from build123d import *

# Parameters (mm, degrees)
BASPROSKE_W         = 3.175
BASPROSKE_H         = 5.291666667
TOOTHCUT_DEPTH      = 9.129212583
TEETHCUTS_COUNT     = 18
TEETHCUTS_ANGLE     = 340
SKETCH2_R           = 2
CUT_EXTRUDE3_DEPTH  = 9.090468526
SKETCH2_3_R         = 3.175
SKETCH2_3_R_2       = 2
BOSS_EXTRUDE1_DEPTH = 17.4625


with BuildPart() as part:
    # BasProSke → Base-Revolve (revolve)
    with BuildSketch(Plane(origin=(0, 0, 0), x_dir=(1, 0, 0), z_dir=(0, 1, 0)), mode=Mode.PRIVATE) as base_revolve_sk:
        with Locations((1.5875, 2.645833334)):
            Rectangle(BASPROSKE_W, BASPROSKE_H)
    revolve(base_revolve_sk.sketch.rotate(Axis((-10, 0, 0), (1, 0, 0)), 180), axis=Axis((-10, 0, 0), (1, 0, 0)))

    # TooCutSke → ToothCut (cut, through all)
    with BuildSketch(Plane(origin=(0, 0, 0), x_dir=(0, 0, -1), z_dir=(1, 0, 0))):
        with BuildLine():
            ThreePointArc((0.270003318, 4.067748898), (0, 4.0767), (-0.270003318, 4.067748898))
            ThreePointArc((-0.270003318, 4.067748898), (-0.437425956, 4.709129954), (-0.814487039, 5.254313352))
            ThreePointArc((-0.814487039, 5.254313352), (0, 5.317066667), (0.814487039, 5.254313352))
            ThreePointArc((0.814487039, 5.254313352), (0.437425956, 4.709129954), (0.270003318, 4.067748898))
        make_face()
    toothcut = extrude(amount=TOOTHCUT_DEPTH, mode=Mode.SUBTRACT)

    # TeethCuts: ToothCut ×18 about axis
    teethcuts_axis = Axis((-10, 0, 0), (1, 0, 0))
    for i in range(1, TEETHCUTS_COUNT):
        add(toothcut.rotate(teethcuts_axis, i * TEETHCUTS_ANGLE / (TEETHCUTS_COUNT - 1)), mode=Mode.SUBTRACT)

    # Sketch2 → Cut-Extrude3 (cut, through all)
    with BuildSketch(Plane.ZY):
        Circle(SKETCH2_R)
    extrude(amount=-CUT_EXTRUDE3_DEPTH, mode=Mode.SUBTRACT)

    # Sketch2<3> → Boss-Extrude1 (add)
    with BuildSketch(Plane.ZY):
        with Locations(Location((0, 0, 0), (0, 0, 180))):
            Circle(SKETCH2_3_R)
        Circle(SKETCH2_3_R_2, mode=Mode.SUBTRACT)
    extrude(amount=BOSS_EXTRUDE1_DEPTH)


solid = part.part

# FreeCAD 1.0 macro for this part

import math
import FreeCAD as App
import Part
import Sketcher
Q = App.Units.Quantity

doc = App.newDocument("Part")
params = doc.addObject("Spreadsheet::Sheet", "Params")
for row, (alias, value) in enumerate([
    ("sketch1_width", "0.125 in"),
    ("revolution_angle", "360 deg"),
    ("sketch2_radius", "0.075 in"),
    ("sketch4_diameter", "0.25 in"),
    ("pad1_length", "0.6875 in"),
], start=1):
    params.set(f"A{row}", alias)
    params.set(f"B{row}", "=" + value)
    params.setAlias(f"B{row}", alias)

body = doc.addObject("PartDesign::Body", "Body")

sketch1 = body.newObject("Sketcher::SketchObject", "Sketch")
sketch1.AttachmentSupport = (doc.getObject("XZ_Plane"), [""])
sketch1.MapMode = "FlatFace"
sketch1.addGeometry(Part.LineSegment(App.Vector(0, -5.3, 0), App.Vector(0, 0, 0)), False)
sketch1.addGeometry(Part.LineSegment(App.Vector(0, 0, 0), App.Vector(3.2, 0, 0)), False)
sketch1.addGeometry(Part.LineSegment(App.Vector(3.2, 0, 0), App.Vector(3.2, -5.3, 0)), False)
sketch1.addGeometry(Part.LineSegment(App.Vector(3.2, -5.3, 0), App.Vector(0, -5.3, 0)), False)
sketch1.addConstraint(Sketcher.Constraint("Coincident", 0, 2, 1, 1))
sketch1.addConstraint(Sketcher.Constraint("Coincident", 1, 2, 2, 1))
sketch1.addConstraint(Sketcher.Constraint("Coincident", 2, 2, 3, 1))
sketch1.addConstraint(Sketcher.Constraint("Coincident", 3, 2, 0, 1))
sketch1.addConstraint(Sketcher.Constraint("Vertical", 0))
sketch1.addConstraint(Sketcher.Constraint("Horizontal", 1))
sketch1.addConstraint(Sketcher.Constraint("Vertical", 2))
sketch1.addConstraint(Sketcher.Constraint("Horizontal", 3))
sketch1.addConstraint(Sketcher.Constraint("Coincident", 0, 2, -1, 1))
sketch1.addConstraint(Sketcher.Constraint("DistanceX", 1, 1, 1, 2, Q("0.125 in")))
sketch1.addConstraint(Sketcher.Constraint("DistanceY", 0, 1, 0, 2, 5.291667))
sketch1.setExpression("Constraints[9]", "Params.sketch1_width")
revolution = body.newObject("PartDesign::Revolution", "Revolution")
revolution.Profile = sketch1
revolution.ReferenceAxis = (sketch1, ["H_Axis"])
revolution.setExpression("Angle", "Params.revolution_angle")

sketch2 = body.newObject("Sketcher::SketchObject", "Sketch001")
sketch2.AttachmentSupport = (doc.getObject("YZ_Plane"), [""])
sketch2.MapMode = "FlatFace"
sketch2.addGeometry(Part.ArcOfCircle(Part.Circle(App.Vector(0, 0, 0), App.Vector(0, 0, 1), 4.1), math.radians(-3.8), math.radians(3.8)), False)
sketch2.addGeometry(Part.ArcOfCircle(Part.Circle(App.Vector(3.9, -2.2, 0), App.Vector(0, 0, 1), 1.9), math.radians(45), math.radians(85)), False)
sketch2.addGeometry(Part.ArcOfCircle(Part.Circle(App.Vector(0, 0, 0), App.Vector(0, 0, 1), 5.3), math.radians(-8.81), math.radians(8.81)), False)
sketch2.addGeometry(Part.ArcOfCircle(Part.Circle(App.Vector(3.9, 2.2, 0), App.Vector(0, 0, 1), 1.9), math.radians(-85), math.radians(-45)), False)
sketch2.addConstraint(Sketcher.Constraint("Coincident", 0, 1, 1, 2))
sketch2.addConstraint(Sketcher.Constraint("Coincident", 1, 1, 2, 1))
sketch2.addConstraint(Sketcher.Constraint("Coincident", 2, 2, 3, 2))
sketch2.addConstraint(Sketcher.Constraint("Coincident", 3, 1, 0, 2))
sketch2.addConstraint(Sketcher.Constraint("Coincident", 0, 3, -1, 1))
sketch2.addConstraint(Sketcher.Constraint("Coincident", 2, 3, -1, 1))
sketch2.addConstraint(Sketcher.Constraint("Equal", 1, 3))
sketch2.addConstraint(Sketcher.Constraint("Symmetric", 1, 3, 3, 3, -1))
sketch2.addConstraint(Sketcher.Constraint("Radius", 1, Q("0.075 in")))
sketch2.addConstraint(Sketcher.Constraint("Radius", 0, Q("0.1605 in")))
sketch2.addConstraint(Sketcher.Constraint("Radius", 2, 5.317067))
sketch2.addConstraint(Sketcher.Constraint("DistanceX", -1, 1, 1, 3, 3.914629))
sketch2.addConstraint(Sketcher.Constraint("DistanceY", 1, 3, -1, 1, 2.16884))
sketch2.setExpression("Constraints[8]", "Params.sketch2_radius")
pocket1 = body.newObject("PartDesign::Pocket", "Pocket")
pocket1.Profile = sketch2
pocket1.Type = "ThroughAll"
pocket1.Reversed = True
doc.recompute()

polarpattern = body.newObject("PartDesign::PolarPattern", "PolarPattern")
polarpattern.Originals = [pocket1]
polarpattern.Axis = (doc.getObject("X_Axis"), [""])
polarpattern.Angle = 360
polarpattern.Occurrences = 18
body.Tip = polarpattern

sketch3 = body.newObject("Sketcher::SketchObject", "Sketch002")
sketch3.AttachmentSupport = (doc.getObject("YZ_Plane"), [""])
sketch3.MapMode = "FlatFace"
sketch3.addGeometry(Part.Circle(App.Vector(0, 0, 0), App.Vector(0, 0, 1), 2), False)
sketch3.addConstraint(Sketcher.Constraint("Coincident", 0, 3, -1, 1))
sketch3.addConstraint(Sketcher.Constraint("Diameter", 0, 4.0))
pocket2 = body.newObject("PartDesign::Pocket", "Pocket001")
pocket2.Profile = sketch3
pocket2.Type = "ThroughAll"
pocket2.Reversed = True

sketch4 = body.newObject("Sketcher::SketchObject", "Sketch003")
sketch4.AttachmentSupport = (doc.getObject("YZ_Plane"), [""])
sketch4.MapMode = "FlatFace"
sketch4.addGeometry(Part.Circle(App.Vector(0, 0, 0), App.Vector(0, 0, 1), 3.2), False)
sketch4.addGeometry(Part.Circle(App.Vector(0, 0, 0), App.Vector(0, 0, 1), 2), False)
sketch4.addConstraint(Sketcher.Constraint("Coincident", 0, 3, -1, 1))
sketch4.addConstraint(Sketcher.Constraint("Coincident", 1, 3, -1, 1))
sketch4.addConstraint(Sketcher.Constraint("Diameter", 0, Q("0.25 in")))
sketch4.addConstraint(Sketcher.Constraint("Diameter", 1, 4.0))
sketch4.setExpression("Constraints[2]", "Params.sketch4_diameter")
pad1 = body.newObject("PartDesign::Pad", "Pad")
pad1.Profile = sketch4
pad1.setExpression("Length", "Params.pad1_length")
pad1.Reversed = True

doc.recompute()
